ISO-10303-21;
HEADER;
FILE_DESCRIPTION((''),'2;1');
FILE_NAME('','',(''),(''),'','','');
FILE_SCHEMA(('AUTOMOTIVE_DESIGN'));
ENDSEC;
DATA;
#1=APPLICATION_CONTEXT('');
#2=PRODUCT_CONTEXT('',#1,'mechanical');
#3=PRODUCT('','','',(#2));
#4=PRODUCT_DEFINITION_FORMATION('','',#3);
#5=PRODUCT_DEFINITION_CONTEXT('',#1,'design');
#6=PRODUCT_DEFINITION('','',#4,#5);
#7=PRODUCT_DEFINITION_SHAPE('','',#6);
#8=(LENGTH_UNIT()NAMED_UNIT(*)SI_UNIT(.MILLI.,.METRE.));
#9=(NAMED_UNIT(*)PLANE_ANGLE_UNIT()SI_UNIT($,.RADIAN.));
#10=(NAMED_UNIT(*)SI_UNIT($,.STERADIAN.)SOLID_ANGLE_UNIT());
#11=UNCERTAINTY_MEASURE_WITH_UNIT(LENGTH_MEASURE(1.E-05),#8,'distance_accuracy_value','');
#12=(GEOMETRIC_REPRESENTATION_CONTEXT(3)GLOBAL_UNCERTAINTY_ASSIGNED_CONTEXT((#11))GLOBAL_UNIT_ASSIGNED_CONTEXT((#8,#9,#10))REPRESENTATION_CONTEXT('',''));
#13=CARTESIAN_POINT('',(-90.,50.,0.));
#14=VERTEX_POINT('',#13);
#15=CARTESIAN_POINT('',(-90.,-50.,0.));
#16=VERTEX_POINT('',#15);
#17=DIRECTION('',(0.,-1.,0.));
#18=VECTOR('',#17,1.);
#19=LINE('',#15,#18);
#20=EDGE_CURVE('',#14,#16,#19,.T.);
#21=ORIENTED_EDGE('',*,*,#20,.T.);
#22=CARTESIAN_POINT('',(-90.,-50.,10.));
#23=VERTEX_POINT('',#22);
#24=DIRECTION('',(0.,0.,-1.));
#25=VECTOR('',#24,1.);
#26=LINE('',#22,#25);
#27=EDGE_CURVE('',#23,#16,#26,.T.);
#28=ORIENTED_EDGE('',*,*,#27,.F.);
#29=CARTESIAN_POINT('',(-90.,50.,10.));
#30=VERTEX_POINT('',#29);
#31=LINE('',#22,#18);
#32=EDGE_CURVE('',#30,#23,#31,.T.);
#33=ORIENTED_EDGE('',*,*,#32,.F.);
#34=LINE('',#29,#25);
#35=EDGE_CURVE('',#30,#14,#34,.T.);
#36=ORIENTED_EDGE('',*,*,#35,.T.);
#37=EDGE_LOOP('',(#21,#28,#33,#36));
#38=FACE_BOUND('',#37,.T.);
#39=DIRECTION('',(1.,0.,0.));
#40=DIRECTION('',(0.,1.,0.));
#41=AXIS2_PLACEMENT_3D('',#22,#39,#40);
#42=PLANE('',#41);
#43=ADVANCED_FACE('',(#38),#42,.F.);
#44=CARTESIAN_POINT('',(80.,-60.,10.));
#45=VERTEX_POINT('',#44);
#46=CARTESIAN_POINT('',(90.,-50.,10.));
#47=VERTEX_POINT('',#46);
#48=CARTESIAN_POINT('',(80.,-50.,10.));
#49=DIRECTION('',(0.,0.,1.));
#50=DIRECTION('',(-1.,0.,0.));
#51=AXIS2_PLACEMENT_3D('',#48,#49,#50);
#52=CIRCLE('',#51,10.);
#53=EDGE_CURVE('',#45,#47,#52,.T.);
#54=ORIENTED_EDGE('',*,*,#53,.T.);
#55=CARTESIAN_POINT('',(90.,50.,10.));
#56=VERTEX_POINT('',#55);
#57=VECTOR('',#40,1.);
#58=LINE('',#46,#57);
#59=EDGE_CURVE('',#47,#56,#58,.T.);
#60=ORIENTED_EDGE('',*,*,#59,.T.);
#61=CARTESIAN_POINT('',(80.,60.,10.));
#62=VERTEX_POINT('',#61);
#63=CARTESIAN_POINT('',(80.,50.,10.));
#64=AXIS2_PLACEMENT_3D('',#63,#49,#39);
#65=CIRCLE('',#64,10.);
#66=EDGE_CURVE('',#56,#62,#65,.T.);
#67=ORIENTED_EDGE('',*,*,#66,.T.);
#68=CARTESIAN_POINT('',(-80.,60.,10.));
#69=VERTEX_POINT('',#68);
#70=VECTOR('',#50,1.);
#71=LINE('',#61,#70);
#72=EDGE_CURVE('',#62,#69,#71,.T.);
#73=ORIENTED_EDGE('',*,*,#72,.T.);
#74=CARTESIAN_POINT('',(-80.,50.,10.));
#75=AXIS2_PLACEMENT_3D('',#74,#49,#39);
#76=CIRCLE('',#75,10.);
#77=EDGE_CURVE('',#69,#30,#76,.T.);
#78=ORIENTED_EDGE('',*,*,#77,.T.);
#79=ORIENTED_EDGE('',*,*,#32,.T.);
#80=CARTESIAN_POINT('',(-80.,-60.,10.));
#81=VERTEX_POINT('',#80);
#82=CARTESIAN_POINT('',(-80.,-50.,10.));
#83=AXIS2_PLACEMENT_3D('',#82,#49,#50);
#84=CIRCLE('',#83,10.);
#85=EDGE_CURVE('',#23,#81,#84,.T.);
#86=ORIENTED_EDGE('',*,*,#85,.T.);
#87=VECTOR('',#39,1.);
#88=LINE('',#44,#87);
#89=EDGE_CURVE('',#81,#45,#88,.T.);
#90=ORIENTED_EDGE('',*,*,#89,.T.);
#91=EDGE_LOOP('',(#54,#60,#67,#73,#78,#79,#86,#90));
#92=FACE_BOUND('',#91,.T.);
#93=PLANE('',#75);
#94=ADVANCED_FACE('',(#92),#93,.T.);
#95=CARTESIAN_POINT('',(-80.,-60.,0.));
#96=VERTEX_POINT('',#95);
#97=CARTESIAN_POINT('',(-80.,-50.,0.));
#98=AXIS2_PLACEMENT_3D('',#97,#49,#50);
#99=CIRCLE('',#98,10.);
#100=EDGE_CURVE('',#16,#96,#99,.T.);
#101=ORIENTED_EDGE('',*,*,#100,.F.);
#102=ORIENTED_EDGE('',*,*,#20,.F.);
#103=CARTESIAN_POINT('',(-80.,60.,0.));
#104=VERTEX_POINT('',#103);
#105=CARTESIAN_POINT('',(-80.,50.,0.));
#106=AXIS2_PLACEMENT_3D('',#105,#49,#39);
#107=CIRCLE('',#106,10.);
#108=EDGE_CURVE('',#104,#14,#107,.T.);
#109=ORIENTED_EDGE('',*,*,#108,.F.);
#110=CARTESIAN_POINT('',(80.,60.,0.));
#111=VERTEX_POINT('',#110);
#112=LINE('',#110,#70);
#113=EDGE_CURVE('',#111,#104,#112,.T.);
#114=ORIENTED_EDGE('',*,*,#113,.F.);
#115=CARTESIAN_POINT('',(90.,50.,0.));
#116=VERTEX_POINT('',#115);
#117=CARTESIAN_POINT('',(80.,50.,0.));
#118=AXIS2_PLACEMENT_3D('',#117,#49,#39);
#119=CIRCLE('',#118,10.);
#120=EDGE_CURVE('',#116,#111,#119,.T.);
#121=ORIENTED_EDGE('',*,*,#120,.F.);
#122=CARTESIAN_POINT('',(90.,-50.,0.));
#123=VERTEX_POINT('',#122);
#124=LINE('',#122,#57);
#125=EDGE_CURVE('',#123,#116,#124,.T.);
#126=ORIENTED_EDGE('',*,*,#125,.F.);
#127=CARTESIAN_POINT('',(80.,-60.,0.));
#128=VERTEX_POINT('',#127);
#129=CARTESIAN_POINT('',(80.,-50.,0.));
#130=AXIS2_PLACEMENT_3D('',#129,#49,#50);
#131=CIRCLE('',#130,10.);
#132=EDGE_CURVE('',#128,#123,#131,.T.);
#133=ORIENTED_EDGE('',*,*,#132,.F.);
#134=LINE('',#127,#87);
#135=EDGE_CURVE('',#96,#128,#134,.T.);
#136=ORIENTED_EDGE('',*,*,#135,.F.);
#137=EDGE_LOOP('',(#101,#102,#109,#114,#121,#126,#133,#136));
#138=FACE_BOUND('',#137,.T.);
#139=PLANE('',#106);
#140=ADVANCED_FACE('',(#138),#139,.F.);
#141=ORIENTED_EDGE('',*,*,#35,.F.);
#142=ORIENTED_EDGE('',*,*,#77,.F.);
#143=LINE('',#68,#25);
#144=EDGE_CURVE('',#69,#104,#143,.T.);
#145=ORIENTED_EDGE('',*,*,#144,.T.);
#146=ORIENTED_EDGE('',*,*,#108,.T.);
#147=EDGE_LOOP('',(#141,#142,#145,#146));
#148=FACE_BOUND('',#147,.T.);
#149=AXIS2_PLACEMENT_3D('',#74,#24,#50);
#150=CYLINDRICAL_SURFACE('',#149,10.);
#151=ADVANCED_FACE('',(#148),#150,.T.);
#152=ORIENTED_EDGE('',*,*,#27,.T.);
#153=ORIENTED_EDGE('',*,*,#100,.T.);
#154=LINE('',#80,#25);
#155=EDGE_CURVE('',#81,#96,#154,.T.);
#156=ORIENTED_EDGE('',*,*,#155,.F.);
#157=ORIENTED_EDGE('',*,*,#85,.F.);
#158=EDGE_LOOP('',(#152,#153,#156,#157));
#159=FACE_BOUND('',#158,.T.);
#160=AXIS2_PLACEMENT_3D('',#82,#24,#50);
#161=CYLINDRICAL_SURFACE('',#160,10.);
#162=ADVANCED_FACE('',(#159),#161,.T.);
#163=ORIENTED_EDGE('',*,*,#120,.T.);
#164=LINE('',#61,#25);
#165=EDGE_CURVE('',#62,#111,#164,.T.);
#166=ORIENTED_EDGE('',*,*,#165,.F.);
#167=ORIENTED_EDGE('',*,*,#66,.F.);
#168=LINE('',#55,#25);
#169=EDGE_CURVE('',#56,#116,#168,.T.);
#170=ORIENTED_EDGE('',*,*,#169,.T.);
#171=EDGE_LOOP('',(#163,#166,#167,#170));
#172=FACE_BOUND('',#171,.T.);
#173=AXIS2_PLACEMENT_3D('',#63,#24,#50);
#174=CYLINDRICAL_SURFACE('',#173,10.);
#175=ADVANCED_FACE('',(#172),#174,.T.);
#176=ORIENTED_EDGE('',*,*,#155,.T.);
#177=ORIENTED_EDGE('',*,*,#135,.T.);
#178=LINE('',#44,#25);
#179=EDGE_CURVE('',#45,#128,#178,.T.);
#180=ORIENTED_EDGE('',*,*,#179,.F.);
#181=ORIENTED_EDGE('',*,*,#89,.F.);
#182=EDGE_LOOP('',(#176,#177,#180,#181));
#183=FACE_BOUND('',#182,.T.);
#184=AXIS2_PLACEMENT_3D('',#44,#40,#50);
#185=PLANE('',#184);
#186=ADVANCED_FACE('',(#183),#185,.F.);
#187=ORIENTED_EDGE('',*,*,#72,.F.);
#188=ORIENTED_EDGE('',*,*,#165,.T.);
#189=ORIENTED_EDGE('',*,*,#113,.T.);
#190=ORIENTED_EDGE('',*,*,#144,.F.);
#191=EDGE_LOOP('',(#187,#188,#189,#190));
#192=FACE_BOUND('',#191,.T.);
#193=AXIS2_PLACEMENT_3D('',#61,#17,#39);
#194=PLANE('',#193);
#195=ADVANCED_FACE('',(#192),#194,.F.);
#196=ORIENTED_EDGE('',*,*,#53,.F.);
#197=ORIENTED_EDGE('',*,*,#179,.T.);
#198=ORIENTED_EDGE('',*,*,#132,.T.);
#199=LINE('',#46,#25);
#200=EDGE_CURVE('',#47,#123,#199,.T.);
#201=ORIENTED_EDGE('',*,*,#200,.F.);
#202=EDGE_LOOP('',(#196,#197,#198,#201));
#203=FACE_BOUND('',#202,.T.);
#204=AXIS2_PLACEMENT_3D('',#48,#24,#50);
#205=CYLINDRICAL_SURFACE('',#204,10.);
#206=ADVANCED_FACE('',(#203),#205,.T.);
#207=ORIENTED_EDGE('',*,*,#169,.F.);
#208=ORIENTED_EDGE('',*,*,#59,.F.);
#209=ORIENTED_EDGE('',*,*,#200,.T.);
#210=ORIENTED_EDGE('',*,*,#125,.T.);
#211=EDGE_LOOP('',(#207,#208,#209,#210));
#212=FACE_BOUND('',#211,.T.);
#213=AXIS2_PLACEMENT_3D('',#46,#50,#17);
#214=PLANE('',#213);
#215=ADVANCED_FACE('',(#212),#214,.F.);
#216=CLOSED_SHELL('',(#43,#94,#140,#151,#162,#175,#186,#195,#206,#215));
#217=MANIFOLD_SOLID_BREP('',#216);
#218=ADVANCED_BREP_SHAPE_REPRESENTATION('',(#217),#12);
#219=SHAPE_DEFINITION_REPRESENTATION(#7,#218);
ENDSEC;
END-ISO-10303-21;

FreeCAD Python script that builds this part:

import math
import FreeCAD as App
import Part
import Sketcher
from FreeCAD import Vector
Q = App.Units.Quantity

doc = App.newDocument("Part")
params = doc.addObject("Spreadsheet::Sheet", "Params")
for row, (alias, value) in enumerate([
    ("sketch1_radius", "10 mm"),
    ("sketch1_width", "160 mm"),
    ("sketch1_height", "100 mm"),
    ("pad1_length", "10 mm"),
], start=1):
    params.set(f"A{row}", alias)
    params.set(f"B{row}", "=" + value)
    params.setAlias(f"B{row}", alias)

body = doc.addObject("PartDesign::Body", "Body")

# Sketch on XY plane
sketch1 = body.newObject("Sketcher::SketchObject", "Sketch")
sketch1.AttachmentSupport = (doc.getObject("XY_Plane"), [""])
sketch1.MapMode = "FlatFace"
sketch1.addGeometry(Part.LineSegment(Vector(-80, -60, 0), Vector(80, -60, 0)), False)
sketch1.addGeometry(Part.ArcOfCircle(Part.Circle(Vector(80, -50, 0), Vector(0, 0, 1), 10), math.radians(-90), math.radians(0)), False)
sketch1.addGeometry(Part.LineSegment(Vector(90, -50, 0), Vector(90, 50, 0)), False)
sketch1.addGeometry(Part.ArcOfCircle(Part.Circle(Vector(80, 50, 0), Vector(0, 0, 1), 10), math.radians(0), math.radians(90)), False)
sketch1.addGeometry(Part.LineSegment(Vector(80, 60, 0), Vector(-80, 60, 0)), False)
sketch1.addGeometry(Part.ArcOfCircle(Part.Circle(Vector(-80, 50, 0), Vector(0, 0, 1), 10), math.radians(90), math.radians(180)), False)
sketch1.addGeometry(Part.LineSegment(Vector(-90, 50, 0), Vector(-90, -50, 0)), False)
sketch1.addGeometry(Part.ArcOfCircle(Part.Circle(Vector(-80, -50, 0), Vector(0, 0, 1), 10), math.radians(180), math.radians(270)), False)
sketch1.addConstraint(Sketcher.Constraint("Tangent", 0, 2, 1, 1))
sketch1.addConstraint(Sketcher.Constraint("Tangent", 1, 2, 2, 1))
sketch1.addConstraint(Sketcher.Constraint("Tangent", 2, 2, 3, 1))
sketch1.addConstraint(Sketcher.Constraint("Tangent", 3, 2, 4, 1))
sketch1.addConstraint(Sketcher.Constraint("Tangent", 4, 2, 5, 1))
sketch1.addConstraint(Sketcher.Constraint("Tangent", 5, 2, 6, 1))
sketch1.addConstraint(Sketcher.Constraint("Tangent", 6, 2, 7, 1))
sketch1.addConstraint(Sketcher.Constraint("Tangent", 7, 2, 0, 1))
sketch1.addConstraint(Sketcher.Constraint("Horizontal", 0))
sketch1.addConstraint(Sketcher.Constraint("Vertical", 2))
sketch1.addConstraint(Sketcher.Constraint("Horizontal", 4))
sketch1.addConstraint(Sketcher.Constraint("Vertical", 6))
sketch1.addConstraint(Sketcher.Constraint("Equal", 1, 3))
sketch1.addConstraint(Sketcher.Constraint("Equal", 3, 5))
sketch1.addConstraint(Sketcher.Constraint("Equal", 5, 7))
sketch1.addConstraint(Sketcher.Constraint("Symmetric", 1, 3, 5, 3, -1, 1))
sketch1.addConstraint(Sketcher.Constraint("Radius", 1, Q("10 mm")))
sketch1.addConstraint(Sketcher.Constraint("DistanceX", 0, 1, 0, 2, Q("160 mm")))
sketch1.addConstraint(Sketcher.Constraint("DistanceY", 2, 1, 2, 2, Q("100 mm")))
sketch1.setExpression("Constraints[16]", "Params.sketch1_radius")
sketch1.setExpression("Constraints[17]", "Params.sketch1_width")
sketch1.setExpression("Constraints[18]", "Params.sketch1_height")
pad1 = body.newObject("PartDesign::Pad", "Pad")
pad1.Profile = sketch1
pad1.setExpression("Length", "Params.pad1_length")

doc.recompute()
